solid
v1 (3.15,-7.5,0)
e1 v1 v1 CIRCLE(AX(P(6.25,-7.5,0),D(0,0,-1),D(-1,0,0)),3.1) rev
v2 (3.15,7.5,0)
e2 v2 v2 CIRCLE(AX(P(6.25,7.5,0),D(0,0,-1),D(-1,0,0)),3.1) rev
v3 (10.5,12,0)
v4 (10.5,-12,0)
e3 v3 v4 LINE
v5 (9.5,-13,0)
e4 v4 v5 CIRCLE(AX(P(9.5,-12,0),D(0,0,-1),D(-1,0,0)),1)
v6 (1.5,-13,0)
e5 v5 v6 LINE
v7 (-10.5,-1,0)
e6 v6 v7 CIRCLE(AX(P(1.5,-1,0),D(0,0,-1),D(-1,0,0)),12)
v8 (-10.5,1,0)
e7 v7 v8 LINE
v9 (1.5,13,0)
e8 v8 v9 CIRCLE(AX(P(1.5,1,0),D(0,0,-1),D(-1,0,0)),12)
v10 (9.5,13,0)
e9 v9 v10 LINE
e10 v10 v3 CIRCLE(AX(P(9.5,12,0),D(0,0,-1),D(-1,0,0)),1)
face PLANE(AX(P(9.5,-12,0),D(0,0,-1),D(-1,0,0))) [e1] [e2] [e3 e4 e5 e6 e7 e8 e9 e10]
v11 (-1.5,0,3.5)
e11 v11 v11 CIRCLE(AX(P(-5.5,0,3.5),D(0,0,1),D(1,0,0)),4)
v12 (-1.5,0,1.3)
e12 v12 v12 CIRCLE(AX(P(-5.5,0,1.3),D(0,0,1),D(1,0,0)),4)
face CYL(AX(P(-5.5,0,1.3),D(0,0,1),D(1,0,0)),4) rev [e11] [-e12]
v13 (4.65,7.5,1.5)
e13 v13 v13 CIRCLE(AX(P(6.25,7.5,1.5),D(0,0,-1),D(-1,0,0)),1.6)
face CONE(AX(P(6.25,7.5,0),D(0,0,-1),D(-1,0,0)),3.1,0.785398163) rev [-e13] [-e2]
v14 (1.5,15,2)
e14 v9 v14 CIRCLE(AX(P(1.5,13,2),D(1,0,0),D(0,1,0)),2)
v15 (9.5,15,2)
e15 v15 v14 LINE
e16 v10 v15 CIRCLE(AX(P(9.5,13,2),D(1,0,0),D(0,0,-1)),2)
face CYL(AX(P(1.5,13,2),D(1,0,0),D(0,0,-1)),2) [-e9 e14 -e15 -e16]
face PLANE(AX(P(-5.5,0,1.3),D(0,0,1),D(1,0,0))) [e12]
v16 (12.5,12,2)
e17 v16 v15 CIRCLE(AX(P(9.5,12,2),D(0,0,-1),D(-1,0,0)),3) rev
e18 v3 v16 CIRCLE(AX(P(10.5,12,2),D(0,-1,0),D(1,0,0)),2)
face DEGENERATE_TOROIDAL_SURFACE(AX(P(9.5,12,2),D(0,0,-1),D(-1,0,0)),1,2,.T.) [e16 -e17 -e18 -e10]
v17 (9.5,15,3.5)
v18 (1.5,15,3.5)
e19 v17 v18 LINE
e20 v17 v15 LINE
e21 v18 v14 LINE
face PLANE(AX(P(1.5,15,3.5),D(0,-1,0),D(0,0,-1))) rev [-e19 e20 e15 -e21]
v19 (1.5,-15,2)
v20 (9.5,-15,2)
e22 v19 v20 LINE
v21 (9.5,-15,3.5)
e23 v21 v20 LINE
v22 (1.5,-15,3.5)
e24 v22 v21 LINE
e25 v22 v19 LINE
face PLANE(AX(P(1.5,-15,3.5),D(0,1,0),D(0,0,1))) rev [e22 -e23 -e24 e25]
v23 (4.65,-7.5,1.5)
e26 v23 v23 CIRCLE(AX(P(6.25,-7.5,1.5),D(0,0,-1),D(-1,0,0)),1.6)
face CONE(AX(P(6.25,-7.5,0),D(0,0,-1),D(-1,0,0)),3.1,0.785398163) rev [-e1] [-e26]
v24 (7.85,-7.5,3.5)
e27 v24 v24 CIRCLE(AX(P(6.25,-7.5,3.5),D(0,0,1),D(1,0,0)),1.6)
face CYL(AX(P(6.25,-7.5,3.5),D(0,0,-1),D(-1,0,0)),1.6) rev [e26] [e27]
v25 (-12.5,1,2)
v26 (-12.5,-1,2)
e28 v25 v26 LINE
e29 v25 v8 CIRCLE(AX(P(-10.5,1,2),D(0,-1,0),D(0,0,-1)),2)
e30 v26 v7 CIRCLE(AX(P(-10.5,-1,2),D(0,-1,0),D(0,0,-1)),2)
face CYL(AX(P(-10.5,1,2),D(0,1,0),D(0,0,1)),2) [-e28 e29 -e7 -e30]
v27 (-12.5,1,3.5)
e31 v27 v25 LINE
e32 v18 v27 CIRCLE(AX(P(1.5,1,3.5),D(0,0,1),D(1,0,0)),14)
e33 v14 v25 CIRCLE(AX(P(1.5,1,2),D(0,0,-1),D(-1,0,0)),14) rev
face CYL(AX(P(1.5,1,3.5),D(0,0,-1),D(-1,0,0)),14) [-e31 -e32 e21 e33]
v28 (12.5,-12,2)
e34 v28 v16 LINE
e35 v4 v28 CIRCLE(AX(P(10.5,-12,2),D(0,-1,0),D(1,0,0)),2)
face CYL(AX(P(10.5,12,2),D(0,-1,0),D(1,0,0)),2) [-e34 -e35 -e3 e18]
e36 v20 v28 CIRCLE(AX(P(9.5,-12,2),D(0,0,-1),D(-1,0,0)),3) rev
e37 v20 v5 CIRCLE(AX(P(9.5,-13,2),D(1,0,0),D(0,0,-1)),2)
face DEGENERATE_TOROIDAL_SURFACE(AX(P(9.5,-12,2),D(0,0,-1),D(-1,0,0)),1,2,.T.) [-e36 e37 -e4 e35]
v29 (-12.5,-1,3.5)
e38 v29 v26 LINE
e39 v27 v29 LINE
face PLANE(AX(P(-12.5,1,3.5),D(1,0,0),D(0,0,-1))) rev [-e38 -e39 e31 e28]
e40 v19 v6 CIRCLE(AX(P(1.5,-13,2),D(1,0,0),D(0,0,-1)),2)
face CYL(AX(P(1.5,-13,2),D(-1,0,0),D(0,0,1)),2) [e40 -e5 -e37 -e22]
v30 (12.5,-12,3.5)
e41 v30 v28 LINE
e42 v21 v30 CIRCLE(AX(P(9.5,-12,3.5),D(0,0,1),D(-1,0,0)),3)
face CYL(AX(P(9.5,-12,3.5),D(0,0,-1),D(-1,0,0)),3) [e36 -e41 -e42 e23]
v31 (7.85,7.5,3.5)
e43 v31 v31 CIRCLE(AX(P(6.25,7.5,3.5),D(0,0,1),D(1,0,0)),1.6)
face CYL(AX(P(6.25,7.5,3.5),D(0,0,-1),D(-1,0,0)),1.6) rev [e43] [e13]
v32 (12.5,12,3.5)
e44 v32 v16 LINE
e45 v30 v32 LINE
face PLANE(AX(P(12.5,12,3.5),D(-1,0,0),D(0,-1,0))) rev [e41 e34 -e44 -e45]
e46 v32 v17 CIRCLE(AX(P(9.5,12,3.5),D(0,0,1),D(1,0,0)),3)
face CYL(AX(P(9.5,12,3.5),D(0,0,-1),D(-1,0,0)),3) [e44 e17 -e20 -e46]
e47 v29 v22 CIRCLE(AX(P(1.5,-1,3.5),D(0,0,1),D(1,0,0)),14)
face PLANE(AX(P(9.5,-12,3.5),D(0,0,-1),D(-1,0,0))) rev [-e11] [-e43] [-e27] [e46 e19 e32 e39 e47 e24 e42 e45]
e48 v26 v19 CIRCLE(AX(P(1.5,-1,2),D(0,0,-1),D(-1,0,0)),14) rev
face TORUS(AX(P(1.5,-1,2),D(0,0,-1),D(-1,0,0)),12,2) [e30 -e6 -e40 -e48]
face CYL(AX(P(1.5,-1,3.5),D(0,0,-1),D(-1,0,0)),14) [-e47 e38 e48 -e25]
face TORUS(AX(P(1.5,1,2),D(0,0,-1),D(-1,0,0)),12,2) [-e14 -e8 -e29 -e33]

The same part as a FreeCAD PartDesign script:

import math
import FreeCAD as App
import Part
import Sketcher


def edges_at(feature, points):
    """Names of the edges that pass closest to the given points."""
    edges = feature.Shape.Edges
    near = lambda p: min(range(len(edges)), key=lambda i: edges[i].distToShape(Part.Vertex(*p))[0])
    return sorted({f"Edge{near(p) + 1}" for p in points})

doc = App.newDocument("Part")
params = doc.addObject("Spreadsheet::Sheet", "Params")
for row, (alias, value) in enumerate([
    ("sketch1_radius", "14 mm"),
    ("sketch1_radius2", "3 mm"),
    ("sketch1_diameter", "3.2 mm"),
    ("sketch1_width", "8 mm"),
    ("sketch1_height", "2 mm"),
    ("pad1_length", "3.5 mm"),
    ("sketch2_diameter", "8 mm"),
    ("pocket1_length", "2.2 mm"),
    ("fillet_radius", "2 mm"),
    ("chamfer_size", "1.5 mm"),
], start=1):
    params.set(f"A{row}", alias)
    params.set(f"B{row}", "=" + value)
    params.setAlias(f"B{row}", alias)

body = doc.addObject("PartDesign::Body", "Body")

# Sketch on XY plane
sketch1 = body.newObject("Sketcher::SketchObject", "Sketch")
sketch1.AttachmentSupport = (doc.getObject("XY_Plane"), [""])
sketch1.MapMode = "FlatFace"
sketch1.addGeometry(Part.LineSegment(App.Vector(9.5, 15, 0), App.Vector(1.5, 15, 0)), False)
sketch1.addGeometry(Part.ArcOfCircle(Part.Circle(App.Vector(1.5, 1, 0), App.Vector(0, 0, 1), 14), math.radians(90), math.radians(180)), False)
sketch1.addGeometry(Part.LineSegment(App.Vector(-12.5, 1, 0), App.Vector(-12.5, -1, 0)), False)
sketch1.addGeometry(Part.ArcOfCircle(Part.Circle(App.Vector(1.5, -1, 0), App.Vector(0, 0, 1), 14), math.radians(180), math.radians(270)), False)
sketch1.addGeometry(Part.LineSegment(App.Vector(1.5, -15, 0), App.Vector(9.5, -15, 0)), False)
sketch1.addGeometry(Part.ArcOfCircle(Part.Circle(App.Vector(9.5, -12, 0), App.Vector(0, 0, 1), 3), math.radians(-90), math.radians(0)), False)
sketch1.addGeometry(Part.LineSegment(App.Vector(12.5, -12, 0), App.Vector(12.5, 12, 0)), False)
sketch1.addGeometry(Part.ArcOfCircle(Part.Circle(App.Vector(9.5, 12, 0), App.Vector(0, 0, 1), 3), math.radians(0), math.radians(90)), False)
sketch1.addGeometry(Part.Circle(App.Vector(6.2, -7.5, 0), App.Vector(0, 0, 1), 1.6), False)
sketch1.addGeometry(Part.Circle(App.Vector(6.2, 7.5, 0), App.Vector(0, 0, 1), 1.6), False)
sketch1.addConstraint(Sketcher.Constraint("Tangent", 0, 2, 1, 1))
sketch1.addConstraint(Sketcher.Constraint("Tangent", 1, 2, 2, 1))
sketch1.addConstraint(Sketcher.Constraint("Tangent", 2, 2, 3, 1))
sketch1.addConstraint(Sketcher.Constraint("Tangent", 3, 2, 4, 1))
sketch1.addConstraint(Sketcher.Constraint("Tangent", 4, 2, 5, 1))
sketch1.addConstraint(Sketcher.Constraint("Tangent", 5, 2, 6, 1))
sketch1.addConstraint(Sketcher.Constraint("Tangent", 6, 2, 7, 1))
sketch1.addConstraint(Sketcher.Constraint("Tangent", 7, 2, 0, 1))
sketch1.addConstraint(Sketcher.Constraint("Horizontal", 0))
sketch1.addConstraint(Sketcher.Constraint("Vertical", 2))
sketch1.addConstraint(Sketcher.Constraint("Horizontal", 4))
sketch1.addConstraint(Sketcher.Constraint("Vertical", 6))
sketch1.addConstraint(Sketcher.Constraint("Equal", 1, 3))
sketch1.addConstraint(Sketcher.Constraint("Equal", 5, 7))
sketch1.addConstraint(Sketcher.Constraint("Equal", 8, 9))
sketch1.addConstraint(Sketcher.Constraint("Symmetric", 8, 3, 9, 3, -1))
sketch1.addConstraint(Sketcher.Constraint("Radius", 1, 14.0))
sketch1.addConstraint(Sketcher.Constraint("Radius", 5, 3.0))
sketch1.addConstraint(Sketcher.Constraint("Diameter", 8, 3.2))
sketch1.addConstraint(Sketcher.Constraint("DistanceX", 0, 2, 0, 1, 8.0))
sketch1.addConstraint(Sketcher.Constraint("DistanceY", 2, 2, 2, 1, 2.0))
sketch1.addConstraint(Sketcher.Constraint("DistanceY", -1, 1, 1, 3, 1.0))
sketch1.addConstraint(Sketcher.Constraint("DistanceY", 8, 3, 9, 3, 15.0))
sketch1.addConstraint(Sketcher.Constraint("DistanceX", -1, 1, 1, 3, 1.5))
sketch1.addConstraint(Sketcher.Constraint("DistanceX", -1, 1, 8, 3, 6.25))
sketch1.setExpression("Constraints[16]", "Params.sketch1_radius")
sketch1.setExpression("Constraints[17]", "Params.sketch1_radius2")
sketch1.setExpression("Constraints[18]", "Params.sketch1_diameter")
sketch1.setExpression("Constraints[19]", "Params.sketch1_width")
sketch1.setExpression("Constraints[20]", "Params.sketch1_height")
pad1 = body.newObject("PartDesign::Pad", "Pad")
pad1.Profile = sketch1
pad1.setExpression("Length", "Params.pad1_length")

# Sketch on XY plane
sketch2 = body.newObject("Sketcher::SketchObject", "Sketch001")
sketch2.AttachmentSupport = (doc.getObject("XY_Plane"), [""])
sketch2.MapMode = "FlatFace"
sketch2.AttachmentOffset = App.Placement(App.Vector(0, 0, 3.5), App.Rotation())
sketch2.addGeometry(Part.Circle(App.Vector(-5.5, 0, 0), App.Vector(0, 0, 1), 4), False)
sketch2.addConstraint(Sketcher.Constraint("PointOnObject", 0, 3, -1))
sketch2.addConstraint(Sketcher.Constraint("Diameter", 0, 8.0))
sketch2.addConstraint(Sketcher.Constraint("DistanceX", 0, 3, -1, 1, 5.5))
sketch2.setExpression("Constraints[1]", "Params.sketch2_diameter")
pocket1 = body.newObject("PartDesign::Pocket", "Pocket")
pocket1.Profile = sketch2
pocket1.setExpression("Length", "Params.pocket1_length")
doc.recompute()

fillet = body.newObject("PartDesign::Fillet", "Fillet")
fillet.Base = (pocket1, edges_at(pocket1, [
    (12.5, 0, 0),
    (11.621, -14.121, 0),
    (5.5, -15, 0),
    (-8.399, -10.899, 0),
    (-12.5, 0, 0),
    (-8.399, 10.899, 0),
    (5.5, 15, 0),
    (11.621, 14.121, 0),
]))
fillet.setExpression("Radius", "Params.fillet_radius")
doc.recompute()

chamfer = body.newObject("PartDesign::Chamfer", "Chamfer")
chamfer.Base = (fillet, edges_at(fillet, [(4.65, 7.5, 0), (4.65, -7.5, 0)]))
chamfer.setExpression("Size", "Params.chamfer_size")

doc.recompute()
